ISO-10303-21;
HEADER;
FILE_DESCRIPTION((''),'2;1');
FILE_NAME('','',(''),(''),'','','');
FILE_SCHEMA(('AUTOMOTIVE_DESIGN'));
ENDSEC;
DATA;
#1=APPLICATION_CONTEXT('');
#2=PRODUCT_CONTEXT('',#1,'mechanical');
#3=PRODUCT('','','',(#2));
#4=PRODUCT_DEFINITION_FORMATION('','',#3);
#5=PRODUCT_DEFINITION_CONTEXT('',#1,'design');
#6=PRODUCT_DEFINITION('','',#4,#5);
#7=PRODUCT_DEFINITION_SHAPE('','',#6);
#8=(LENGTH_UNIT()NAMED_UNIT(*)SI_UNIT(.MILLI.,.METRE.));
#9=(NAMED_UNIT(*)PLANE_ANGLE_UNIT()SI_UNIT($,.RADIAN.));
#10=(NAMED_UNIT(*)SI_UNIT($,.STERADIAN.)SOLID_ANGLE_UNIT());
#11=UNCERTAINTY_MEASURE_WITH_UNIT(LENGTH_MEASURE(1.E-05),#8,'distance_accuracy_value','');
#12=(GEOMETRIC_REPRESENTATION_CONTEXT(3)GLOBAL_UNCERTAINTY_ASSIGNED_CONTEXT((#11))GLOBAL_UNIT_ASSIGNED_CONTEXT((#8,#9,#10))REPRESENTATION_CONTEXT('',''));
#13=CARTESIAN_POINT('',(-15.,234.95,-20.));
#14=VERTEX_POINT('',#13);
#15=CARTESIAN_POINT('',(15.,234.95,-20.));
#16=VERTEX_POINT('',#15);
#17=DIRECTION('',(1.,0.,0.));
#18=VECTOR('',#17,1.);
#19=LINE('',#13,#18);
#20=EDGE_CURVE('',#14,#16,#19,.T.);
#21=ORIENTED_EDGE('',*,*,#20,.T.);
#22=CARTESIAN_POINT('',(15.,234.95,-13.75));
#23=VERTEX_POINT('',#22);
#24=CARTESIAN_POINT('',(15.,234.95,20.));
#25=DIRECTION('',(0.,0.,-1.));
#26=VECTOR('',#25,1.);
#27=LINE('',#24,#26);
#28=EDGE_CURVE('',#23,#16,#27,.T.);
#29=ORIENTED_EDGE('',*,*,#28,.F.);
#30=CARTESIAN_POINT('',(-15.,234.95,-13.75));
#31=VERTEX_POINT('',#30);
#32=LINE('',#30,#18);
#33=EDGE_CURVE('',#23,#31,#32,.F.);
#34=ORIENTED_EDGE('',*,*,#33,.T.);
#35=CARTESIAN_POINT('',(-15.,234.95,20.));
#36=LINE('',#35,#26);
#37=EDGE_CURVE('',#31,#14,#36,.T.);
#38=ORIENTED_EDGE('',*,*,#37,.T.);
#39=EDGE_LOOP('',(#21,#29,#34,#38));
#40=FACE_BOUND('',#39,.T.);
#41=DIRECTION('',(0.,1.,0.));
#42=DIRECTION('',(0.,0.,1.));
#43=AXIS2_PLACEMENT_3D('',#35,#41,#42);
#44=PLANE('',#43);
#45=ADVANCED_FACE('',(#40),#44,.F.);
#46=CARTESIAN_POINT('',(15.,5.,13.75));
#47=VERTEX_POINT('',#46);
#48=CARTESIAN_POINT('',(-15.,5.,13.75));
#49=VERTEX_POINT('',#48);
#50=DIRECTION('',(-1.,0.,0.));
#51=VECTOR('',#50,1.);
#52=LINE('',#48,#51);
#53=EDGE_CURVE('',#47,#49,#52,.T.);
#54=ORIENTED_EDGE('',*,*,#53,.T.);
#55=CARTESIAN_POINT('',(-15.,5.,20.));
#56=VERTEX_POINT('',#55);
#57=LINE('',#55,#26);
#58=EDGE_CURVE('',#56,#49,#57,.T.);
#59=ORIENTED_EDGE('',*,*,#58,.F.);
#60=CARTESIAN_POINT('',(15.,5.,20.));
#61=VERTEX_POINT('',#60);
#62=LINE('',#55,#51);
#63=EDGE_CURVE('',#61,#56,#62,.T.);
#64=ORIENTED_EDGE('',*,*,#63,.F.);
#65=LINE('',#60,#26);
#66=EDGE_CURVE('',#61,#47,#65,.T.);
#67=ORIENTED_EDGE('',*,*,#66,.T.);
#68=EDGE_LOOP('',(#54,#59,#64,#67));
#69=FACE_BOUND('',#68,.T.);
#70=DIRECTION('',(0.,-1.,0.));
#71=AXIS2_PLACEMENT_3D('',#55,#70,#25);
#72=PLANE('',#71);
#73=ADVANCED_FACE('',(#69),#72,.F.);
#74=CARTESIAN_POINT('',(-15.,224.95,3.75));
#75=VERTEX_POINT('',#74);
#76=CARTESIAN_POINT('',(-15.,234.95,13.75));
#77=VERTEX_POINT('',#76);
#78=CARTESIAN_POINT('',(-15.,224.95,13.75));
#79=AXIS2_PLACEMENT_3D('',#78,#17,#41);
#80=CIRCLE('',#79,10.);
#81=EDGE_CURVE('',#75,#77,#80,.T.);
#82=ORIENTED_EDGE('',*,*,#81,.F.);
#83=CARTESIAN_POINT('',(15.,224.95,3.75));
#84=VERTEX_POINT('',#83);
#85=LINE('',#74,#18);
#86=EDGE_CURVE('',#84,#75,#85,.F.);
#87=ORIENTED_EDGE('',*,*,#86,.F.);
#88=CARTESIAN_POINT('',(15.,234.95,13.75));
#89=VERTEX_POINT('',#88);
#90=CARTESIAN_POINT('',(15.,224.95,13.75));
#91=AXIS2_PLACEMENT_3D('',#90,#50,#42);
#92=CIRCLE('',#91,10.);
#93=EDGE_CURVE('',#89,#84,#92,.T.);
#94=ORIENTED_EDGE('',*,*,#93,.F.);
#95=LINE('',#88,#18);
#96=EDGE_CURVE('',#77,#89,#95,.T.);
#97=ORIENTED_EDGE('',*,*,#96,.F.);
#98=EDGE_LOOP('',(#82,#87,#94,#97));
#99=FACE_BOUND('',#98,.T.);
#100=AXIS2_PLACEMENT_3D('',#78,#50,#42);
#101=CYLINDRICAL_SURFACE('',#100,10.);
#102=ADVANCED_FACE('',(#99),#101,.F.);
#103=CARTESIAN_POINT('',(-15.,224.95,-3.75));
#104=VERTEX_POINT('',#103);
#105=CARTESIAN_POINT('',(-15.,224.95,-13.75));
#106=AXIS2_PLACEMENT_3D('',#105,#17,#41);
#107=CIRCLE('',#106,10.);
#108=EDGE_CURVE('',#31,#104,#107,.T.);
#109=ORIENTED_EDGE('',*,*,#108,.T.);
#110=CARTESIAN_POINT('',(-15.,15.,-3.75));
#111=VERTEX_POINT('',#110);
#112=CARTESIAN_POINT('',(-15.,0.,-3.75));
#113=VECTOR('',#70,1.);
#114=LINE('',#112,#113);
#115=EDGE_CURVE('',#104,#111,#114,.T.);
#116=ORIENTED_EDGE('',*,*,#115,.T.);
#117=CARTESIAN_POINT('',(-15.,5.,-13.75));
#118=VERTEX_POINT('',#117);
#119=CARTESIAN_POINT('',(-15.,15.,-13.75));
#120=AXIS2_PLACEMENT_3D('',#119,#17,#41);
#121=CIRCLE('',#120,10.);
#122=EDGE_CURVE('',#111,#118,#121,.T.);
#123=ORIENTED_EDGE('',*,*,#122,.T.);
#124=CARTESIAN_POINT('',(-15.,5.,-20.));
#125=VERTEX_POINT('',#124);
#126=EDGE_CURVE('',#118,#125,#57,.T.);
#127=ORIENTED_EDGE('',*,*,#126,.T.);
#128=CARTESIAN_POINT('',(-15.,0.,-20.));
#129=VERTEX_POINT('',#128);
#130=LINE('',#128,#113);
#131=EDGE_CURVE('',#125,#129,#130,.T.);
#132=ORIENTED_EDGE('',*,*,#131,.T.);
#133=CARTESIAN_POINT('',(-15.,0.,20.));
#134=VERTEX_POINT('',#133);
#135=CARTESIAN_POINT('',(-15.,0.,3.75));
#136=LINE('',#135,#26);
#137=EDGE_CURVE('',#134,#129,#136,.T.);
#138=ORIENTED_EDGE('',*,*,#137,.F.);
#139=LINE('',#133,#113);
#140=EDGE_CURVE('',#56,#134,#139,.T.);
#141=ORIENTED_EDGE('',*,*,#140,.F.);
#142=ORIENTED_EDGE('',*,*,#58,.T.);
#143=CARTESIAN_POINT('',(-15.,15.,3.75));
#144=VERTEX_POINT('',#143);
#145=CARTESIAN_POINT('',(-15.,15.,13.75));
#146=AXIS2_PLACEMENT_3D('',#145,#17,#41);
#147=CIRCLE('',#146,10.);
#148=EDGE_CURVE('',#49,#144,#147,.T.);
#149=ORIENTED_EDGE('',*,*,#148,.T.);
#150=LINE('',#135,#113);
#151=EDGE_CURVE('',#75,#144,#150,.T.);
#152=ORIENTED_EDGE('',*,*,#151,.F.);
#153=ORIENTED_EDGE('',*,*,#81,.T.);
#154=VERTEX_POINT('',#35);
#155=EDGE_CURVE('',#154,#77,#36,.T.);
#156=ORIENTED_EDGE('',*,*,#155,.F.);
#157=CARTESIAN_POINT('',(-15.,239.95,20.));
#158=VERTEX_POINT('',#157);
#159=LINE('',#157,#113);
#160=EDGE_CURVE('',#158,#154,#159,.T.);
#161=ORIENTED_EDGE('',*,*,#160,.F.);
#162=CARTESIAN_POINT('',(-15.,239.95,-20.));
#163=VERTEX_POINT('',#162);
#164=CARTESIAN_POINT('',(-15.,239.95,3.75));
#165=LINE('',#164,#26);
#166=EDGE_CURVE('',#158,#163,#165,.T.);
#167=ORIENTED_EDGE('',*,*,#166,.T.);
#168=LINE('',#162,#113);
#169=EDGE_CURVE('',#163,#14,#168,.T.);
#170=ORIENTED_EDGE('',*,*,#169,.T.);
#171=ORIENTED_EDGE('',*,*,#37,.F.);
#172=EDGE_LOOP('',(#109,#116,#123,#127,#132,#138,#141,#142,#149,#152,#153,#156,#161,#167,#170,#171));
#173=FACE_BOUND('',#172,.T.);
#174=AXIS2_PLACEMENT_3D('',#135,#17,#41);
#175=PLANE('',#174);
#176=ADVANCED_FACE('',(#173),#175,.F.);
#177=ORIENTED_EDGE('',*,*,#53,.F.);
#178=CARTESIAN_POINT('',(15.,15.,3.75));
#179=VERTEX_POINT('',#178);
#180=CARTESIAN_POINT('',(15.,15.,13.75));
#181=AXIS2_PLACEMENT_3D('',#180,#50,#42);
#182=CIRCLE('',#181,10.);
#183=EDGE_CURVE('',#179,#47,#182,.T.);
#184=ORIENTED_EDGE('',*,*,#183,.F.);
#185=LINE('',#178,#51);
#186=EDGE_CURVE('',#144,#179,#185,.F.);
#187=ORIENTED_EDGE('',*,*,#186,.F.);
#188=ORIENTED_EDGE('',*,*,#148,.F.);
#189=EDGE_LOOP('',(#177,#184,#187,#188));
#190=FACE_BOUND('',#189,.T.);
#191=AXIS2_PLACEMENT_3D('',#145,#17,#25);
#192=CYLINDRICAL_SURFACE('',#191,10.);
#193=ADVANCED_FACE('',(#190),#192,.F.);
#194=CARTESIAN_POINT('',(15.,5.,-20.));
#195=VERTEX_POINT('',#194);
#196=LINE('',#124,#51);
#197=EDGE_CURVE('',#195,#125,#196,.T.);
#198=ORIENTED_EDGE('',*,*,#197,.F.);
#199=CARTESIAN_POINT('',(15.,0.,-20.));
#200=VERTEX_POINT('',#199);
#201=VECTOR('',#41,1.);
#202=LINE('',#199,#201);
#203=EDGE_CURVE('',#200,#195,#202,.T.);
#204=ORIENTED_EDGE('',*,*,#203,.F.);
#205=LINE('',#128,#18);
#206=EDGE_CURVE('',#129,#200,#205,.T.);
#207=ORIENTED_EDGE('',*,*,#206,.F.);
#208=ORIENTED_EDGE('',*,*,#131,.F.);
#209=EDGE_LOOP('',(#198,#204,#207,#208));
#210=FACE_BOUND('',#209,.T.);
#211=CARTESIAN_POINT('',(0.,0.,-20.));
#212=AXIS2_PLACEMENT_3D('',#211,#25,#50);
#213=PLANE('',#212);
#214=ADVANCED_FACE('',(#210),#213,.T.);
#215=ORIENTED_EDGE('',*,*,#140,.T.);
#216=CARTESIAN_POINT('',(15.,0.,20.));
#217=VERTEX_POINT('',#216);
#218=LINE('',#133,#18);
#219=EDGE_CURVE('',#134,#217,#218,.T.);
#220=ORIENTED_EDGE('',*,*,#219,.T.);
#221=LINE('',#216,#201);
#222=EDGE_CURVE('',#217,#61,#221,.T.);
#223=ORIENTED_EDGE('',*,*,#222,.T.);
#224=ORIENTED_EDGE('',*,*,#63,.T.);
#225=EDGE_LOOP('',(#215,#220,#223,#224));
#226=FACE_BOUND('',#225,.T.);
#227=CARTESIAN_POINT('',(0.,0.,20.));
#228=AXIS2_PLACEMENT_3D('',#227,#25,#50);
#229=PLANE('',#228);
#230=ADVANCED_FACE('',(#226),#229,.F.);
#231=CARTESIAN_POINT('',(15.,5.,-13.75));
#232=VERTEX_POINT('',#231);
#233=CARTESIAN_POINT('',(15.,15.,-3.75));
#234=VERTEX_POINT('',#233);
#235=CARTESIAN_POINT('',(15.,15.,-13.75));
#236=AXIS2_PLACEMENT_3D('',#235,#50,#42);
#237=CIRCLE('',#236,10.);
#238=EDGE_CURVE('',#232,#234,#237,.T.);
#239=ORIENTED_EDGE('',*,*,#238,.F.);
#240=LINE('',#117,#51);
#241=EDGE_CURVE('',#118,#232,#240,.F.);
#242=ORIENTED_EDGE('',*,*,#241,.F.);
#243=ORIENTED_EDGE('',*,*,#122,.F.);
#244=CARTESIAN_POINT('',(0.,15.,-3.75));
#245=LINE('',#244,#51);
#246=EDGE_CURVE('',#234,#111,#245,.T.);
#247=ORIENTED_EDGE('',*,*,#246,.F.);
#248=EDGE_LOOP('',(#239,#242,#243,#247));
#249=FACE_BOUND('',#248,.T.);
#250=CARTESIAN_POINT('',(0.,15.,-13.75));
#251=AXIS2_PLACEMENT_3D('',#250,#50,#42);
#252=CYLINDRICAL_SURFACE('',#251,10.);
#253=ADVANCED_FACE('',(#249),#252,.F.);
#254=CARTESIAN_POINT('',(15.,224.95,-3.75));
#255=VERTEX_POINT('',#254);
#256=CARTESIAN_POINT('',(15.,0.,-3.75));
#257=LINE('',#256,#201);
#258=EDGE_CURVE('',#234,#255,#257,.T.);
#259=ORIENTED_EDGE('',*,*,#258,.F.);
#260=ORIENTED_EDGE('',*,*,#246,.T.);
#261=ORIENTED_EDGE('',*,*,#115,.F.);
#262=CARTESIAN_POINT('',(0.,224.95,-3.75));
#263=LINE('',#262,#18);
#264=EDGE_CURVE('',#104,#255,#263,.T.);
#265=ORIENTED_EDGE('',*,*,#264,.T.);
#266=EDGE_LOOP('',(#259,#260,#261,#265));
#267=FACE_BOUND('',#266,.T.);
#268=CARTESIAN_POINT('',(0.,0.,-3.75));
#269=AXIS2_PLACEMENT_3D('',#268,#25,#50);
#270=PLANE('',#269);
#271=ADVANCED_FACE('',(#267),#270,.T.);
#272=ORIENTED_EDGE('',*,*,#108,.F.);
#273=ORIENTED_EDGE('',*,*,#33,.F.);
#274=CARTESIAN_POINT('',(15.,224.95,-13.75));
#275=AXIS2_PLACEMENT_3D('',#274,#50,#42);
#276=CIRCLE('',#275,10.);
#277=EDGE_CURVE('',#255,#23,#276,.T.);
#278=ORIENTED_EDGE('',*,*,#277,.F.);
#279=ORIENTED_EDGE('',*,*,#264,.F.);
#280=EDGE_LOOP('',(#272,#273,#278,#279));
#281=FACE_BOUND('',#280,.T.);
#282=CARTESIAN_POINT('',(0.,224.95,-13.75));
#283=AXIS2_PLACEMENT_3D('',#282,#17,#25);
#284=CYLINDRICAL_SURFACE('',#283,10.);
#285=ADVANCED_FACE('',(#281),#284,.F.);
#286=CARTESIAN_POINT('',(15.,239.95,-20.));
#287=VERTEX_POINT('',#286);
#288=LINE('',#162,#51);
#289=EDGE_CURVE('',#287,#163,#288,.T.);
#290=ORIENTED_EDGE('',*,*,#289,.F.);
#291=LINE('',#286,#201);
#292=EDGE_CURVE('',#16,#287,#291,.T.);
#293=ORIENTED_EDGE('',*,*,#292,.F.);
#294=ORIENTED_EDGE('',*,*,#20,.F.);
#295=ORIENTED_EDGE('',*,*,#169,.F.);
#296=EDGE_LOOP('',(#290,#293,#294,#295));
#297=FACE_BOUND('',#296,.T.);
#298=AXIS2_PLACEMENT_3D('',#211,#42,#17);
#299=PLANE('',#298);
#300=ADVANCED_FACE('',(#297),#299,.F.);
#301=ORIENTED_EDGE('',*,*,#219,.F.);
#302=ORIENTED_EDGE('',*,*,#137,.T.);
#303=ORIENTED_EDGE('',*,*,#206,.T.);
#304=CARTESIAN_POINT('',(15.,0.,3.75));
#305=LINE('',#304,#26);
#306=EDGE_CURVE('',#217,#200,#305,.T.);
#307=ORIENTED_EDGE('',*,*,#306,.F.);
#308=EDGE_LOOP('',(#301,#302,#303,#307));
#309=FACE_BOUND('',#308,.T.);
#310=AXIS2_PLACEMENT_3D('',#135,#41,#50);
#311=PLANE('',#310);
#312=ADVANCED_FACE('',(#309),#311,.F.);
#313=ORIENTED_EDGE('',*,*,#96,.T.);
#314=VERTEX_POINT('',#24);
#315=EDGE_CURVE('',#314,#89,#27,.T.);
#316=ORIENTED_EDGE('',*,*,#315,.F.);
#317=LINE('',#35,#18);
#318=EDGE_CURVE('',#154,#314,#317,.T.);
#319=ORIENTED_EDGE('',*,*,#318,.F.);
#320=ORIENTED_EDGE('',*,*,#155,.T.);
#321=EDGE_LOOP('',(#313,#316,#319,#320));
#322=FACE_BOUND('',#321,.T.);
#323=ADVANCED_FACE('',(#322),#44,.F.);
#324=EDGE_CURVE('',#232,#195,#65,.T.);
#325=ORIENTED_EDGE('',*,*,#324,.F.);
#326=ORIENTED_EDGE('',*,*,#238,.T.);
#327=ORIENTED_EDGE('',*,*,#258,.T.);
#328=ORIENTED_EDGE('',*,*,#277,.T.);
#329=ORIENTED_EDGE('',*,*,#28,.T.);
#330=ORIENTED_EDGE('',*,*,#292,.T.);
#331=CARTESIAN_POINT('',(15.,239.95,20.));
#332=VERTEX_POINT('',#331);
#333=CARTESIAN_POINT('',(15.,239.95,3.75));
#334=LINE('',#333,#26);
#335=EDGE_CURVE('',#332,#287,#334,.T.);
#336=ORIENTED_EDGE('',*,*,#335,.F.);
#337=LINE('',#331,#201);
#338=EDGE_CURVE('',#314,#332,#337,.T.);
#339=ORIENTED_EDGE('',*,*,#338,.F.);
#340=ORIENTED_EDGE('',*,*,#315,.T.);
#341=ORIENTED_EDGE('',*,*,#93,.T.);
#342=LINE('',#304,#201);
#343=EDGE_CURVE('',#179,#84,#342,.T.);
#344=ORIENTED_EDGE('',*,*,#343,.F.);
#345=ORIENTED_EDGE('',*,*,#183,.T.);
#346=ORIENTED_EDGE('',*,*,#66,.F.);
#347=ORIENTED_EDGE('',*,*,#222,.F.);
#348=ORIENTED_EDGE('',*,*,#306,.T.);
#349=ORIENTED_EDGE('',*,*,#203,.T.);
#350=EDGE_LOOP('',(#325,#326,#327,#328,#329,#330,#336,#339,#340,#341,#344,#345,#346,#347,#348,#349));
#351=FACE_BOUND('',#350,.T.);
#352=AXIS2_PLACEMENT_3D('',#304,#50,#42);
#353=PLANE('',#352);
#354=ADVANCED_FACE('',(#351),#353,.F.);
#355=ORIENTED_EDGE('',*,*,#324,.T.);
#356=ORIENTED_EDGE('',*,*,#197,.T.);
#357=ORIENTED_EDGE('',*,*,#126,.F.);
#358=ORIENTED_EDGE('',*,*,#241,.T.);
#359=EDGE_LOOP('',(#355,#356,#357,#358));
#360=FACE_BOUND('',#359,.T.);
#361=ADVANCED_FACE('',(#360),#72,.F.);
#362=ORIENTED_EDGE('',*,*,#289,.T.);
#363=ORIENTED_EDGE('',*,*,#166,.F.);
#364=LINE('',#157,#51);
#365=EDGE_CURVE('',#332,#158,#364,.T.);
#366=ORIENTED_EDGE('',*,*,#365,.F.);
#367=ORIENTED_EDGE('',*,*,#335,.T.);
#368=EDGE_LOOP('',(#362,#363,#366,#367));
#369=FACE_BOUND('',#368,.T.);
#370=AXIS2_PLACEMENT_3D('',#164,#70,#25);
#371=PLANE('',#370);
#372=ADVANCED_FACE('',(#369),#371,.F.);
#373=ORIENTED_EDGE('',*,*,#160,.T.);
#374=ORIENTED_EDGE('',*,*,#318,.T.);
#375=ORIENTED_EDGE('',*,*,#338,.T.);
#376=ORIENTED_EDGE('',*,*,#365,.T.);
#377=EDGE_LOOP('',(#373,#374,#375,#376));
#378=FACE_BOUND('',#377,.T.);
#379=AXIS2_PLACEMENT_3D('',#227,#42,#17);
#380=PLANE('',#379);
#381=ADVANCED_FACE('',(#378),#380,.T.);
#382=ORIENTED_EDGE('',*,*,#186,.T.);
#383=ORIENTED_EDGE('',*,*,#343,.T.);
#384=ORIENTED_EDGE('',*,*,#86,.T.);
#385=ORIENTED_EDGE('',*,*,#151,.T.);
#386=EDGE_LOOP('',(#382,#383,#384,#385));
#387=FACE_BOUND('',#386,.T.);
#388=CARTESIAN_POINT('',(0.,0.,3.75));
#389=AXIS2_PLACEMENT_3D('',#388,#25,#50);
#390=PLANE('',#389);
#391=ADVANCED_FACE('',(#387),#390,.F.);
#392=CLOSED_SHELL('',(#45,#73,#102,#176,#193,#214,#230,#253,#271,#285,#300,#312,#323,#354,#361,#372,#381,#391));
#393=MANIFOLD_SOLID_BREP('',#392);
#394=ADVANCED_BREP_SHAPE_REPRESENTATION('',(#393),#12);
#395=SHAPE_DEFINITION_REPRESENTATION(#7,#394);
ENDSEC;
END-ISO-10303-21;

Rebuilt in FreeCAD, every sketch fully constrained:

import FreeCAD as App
import Part
import Sketcher

V = App.Vector
Q = App.Units.Quantity


def edges_at(feature, points):
    """Names of the edges that pass closest to the given points."""
    edges = feature.Shape.Edges
    near = lambda p: min(range(len(edges)), key=lambda i: edges[i].distToShape(Part.Vertex(*p))[0])
    return sorted({f"Edge{near(p) + 1}" for p in points})

doc = App.newDocument("Part")
params = doc.addObject("Spreadsheet::Sheet", "Params")
for row, (alias, value) in enumerate([
    ("sketch1_width", "30 mm"),
    ("sketch1_height", "239.95 mm"),
    ("pad1_length", "7.5 mm"),
    ("sketch2_width", "30 mm"),
    ("sketch2_height", "5 mm"),
    ("pad2_length", "40 mm"),
    ("sketch3_width", "30 mm"),
    ("sketch3_height", "5 mm"),
    ("pad3_length", "40 mm"),
    ("fillet_radius", "10 mm"),
    ("fillet2_radius", "10 mm"),
], start=1):
    params.set(f"A{row}", alias)
    params.set(f"B{row}", "=" + value)
    params.setAlias(f"B{row}", alias)

body = doc.addObject("PartDesign::Body", "Body")

# Sketch on XY plane
sketch1 = body.newObject("Sketcher::SketchObject", "Sketch")
sketch1.AttachmentSupport = (doc.getObject("XY_Plane"), [""])
sketch1.MapMode = "FlatFace"
sketch1.addGeometry([
    Part.LineSegment(V(-15, 240, 0), V(-15, 0, 0)),
    Part.LineSegment(V(-15, 0, 0), V(15, 0, 0)),
    Part.LineSegment(V(15, 0, 0), V(15, 240, 0)),
    Part.LineSegment(V(15, 240, 0), V(-15, 240, 0)),
], False)
sketch1.addConstraint([
    Sketcher.Constraint("Coincident", 0, 2, 1, 1),
    Sketcher.Constraint("Coincident", 1, 2, 2, 1),
    Sketcher.Constraint("Coincident", 2, 2, 3, 1),
    Sketcher.Constraint("Coincident", 3, 2, 0, 1),
    Sketcher.Constraint("Vertical", 0),
    Sketcher.Constraint("Horizontal", 1),
    Sketcher.Constraint("Vertical", 2),
    Sketcher.Constraint("Horizontal", 3),
    Sketcher.Constraint("Symmetric", 0, 2, 1, 2, -1, 1),
    Sketcher.Constraint("DistanceX", 1, 1, 1, 2, Q("30 mm")),
    Sketcher.Constraint("DistanceY", 0, 2, 0, 1, Q("239.95 mm")),
])
sketch1.setExpression("Constraints[9]", "Params.sketch1_width")
sketch1.setExpression("Constraints[10]", "Params.sketch1_height")
pad1 = body.newObject("PartDesign::Pad", "Pad")
pad1.Profile = sketch1
pad1.setExpression("Length", "Params.pad1_length")
pad1.Midplane = True

# Sketch on XY plane
sketch2 = body.newObject("Sketcher::SketchObject", "Sketch001")
sketch2.AttachmentSupport = (doc.getObject("XY_Plane"), [""])
sketch2.MapMode = "FlatFace"
sketch2.addGeometry([
    Part.LineSegment(V(-15, 5, 0), V(-15, 0, 0)),
    Part.LineSegment(V(-15, 0, 0), V(15, 0, 0)),
    Part.LineSegment(V(15, 0, 0), V(15, 5, 0)),
    Part.LineSegment(V(15, 5, 0), V(-15, 5, 0)),
], False)
sketch2.addConstraint([
    Sketcher.Constraint("Coincident", 0, 2, 1, 1),
    Sketcher.Constraint("Coincident", 1, 2, 2, 1),
    Sketcher.Constraint("Coincident", 2, 2, 3, 1),
    Sketcher.Constraint("Coincident", 3, 2, 0, 1),
    Sketcher.Constraint("Vertical", 0),
    Sketcher.Constraint("Horizontal", 1),
    Sketcher.Constraint("Vertical", 2),
    Sketcher.Constraint("Horizontal", 3),
    Sketcher.Constraint("Symmetric", 0, 2, 1, 2, -1, 1),
    Sketcher.Constraint("DistanceX", 1, 1, 1, 2, Q("30 mm")),
    Sketcher.Constraint("DistanceY", 0, 2, 0, 1, Q("5 mm")),
])
sketch2.setExpression("Constraints[9]", "Params.sketch2_width")
sketch2.setExpression("Constraints[10]", "Params.sketch2_height")
pad2 = body.newObject("PartDesign::Pad", "Pad001")
pad2.Profile = sketch2
pad2.setExpression("Length", "Params.pad2_length")
pad2.Midplane = True

# Sketch on XY plane
sketch3 = body.newObject("Sketcher::SketchObject", "Sketch002")
sketch3.AttachmentSupport = (doc.getObject("XY_Plane"), [""])
sketch3.MapMode = "FlatFace"
sketch3.addGeometry([
    Part.LineSegment(V(-15, 240, 0), V(-15, 235, 0)),
    Part.LineSegment(V(-15, 235, 0), V(15, 235, 0)),
    Part.LineSegment(V(15, 235, 0), V(15, 240, 0)),
    Part.LineSegment(V(15, 240, 0), V(-15, 240, 0)),
], False)
sketch3.addConstraint([
    Sketcher.Constraint("Coincident", 0, 2, 1, 1),
    Sketcher.Constraint("Coincident", 1, 2, 2, 1),
    Sketcher.Constraint("Coincident", 2, 2, 3, 1),
    Sketcher.Constraint("Coincident", 3, 2, 0, 1),
    Sketcher.Constraint("Vertical", 0),
    Sketcher.Constraint("Horizontal", 1),
    Sketcher.Constraint("Vertical", 2),
    Sketcher.Constraint("Horizontal", 3),
    Sketcher.Constraint("DistanceX", 1, 1, 1, 2, Q("30 mm")),
    Sketcher.Constraint("DistanceY", 0, 2, 0, 1, Q("5 mm")),
    Sketcher.Constraint("DistanceX", 0, 2, -1, 1, Q("15 mm")),
    Sketcher.Constraint("DistanceY", -1, 1, 0, 2, Q("234.95 mm")),
])
sketch3.setExpression("Constraints[8]", "Params.sketch3_width")
sketch3.setExpression("Constraints[9]", "Params.sketch3_height")
pad3 = body.newObject("PartDesign::Pad", "Pad002")
pad3.Profile = sketch3
pad3.setExpression("Length", "Params.pad3_length")
pad3.Midplane = True
doc.recompute()

fillet = body.newObject("PartDesign::Fillet", "Fillet")
fillet.Base = (pad3, edges_at(pad3, [(0, 234.95, 3.75), (0, 234.95, -3.75)]))
fillet.setExpression("Radius", "Params.fillet_radius")
doc.recompute()

fillet2 = body.newObject("PartDesign::Fillet", "Fillet001")
fillet2.Base = (fillet, edges_at(fillet, [(0, 5, -3.75), (0, 5, 3.75)]))
fillet2.setExpression("Radius", "Params.fillet2_radius")

doc.recompute()
